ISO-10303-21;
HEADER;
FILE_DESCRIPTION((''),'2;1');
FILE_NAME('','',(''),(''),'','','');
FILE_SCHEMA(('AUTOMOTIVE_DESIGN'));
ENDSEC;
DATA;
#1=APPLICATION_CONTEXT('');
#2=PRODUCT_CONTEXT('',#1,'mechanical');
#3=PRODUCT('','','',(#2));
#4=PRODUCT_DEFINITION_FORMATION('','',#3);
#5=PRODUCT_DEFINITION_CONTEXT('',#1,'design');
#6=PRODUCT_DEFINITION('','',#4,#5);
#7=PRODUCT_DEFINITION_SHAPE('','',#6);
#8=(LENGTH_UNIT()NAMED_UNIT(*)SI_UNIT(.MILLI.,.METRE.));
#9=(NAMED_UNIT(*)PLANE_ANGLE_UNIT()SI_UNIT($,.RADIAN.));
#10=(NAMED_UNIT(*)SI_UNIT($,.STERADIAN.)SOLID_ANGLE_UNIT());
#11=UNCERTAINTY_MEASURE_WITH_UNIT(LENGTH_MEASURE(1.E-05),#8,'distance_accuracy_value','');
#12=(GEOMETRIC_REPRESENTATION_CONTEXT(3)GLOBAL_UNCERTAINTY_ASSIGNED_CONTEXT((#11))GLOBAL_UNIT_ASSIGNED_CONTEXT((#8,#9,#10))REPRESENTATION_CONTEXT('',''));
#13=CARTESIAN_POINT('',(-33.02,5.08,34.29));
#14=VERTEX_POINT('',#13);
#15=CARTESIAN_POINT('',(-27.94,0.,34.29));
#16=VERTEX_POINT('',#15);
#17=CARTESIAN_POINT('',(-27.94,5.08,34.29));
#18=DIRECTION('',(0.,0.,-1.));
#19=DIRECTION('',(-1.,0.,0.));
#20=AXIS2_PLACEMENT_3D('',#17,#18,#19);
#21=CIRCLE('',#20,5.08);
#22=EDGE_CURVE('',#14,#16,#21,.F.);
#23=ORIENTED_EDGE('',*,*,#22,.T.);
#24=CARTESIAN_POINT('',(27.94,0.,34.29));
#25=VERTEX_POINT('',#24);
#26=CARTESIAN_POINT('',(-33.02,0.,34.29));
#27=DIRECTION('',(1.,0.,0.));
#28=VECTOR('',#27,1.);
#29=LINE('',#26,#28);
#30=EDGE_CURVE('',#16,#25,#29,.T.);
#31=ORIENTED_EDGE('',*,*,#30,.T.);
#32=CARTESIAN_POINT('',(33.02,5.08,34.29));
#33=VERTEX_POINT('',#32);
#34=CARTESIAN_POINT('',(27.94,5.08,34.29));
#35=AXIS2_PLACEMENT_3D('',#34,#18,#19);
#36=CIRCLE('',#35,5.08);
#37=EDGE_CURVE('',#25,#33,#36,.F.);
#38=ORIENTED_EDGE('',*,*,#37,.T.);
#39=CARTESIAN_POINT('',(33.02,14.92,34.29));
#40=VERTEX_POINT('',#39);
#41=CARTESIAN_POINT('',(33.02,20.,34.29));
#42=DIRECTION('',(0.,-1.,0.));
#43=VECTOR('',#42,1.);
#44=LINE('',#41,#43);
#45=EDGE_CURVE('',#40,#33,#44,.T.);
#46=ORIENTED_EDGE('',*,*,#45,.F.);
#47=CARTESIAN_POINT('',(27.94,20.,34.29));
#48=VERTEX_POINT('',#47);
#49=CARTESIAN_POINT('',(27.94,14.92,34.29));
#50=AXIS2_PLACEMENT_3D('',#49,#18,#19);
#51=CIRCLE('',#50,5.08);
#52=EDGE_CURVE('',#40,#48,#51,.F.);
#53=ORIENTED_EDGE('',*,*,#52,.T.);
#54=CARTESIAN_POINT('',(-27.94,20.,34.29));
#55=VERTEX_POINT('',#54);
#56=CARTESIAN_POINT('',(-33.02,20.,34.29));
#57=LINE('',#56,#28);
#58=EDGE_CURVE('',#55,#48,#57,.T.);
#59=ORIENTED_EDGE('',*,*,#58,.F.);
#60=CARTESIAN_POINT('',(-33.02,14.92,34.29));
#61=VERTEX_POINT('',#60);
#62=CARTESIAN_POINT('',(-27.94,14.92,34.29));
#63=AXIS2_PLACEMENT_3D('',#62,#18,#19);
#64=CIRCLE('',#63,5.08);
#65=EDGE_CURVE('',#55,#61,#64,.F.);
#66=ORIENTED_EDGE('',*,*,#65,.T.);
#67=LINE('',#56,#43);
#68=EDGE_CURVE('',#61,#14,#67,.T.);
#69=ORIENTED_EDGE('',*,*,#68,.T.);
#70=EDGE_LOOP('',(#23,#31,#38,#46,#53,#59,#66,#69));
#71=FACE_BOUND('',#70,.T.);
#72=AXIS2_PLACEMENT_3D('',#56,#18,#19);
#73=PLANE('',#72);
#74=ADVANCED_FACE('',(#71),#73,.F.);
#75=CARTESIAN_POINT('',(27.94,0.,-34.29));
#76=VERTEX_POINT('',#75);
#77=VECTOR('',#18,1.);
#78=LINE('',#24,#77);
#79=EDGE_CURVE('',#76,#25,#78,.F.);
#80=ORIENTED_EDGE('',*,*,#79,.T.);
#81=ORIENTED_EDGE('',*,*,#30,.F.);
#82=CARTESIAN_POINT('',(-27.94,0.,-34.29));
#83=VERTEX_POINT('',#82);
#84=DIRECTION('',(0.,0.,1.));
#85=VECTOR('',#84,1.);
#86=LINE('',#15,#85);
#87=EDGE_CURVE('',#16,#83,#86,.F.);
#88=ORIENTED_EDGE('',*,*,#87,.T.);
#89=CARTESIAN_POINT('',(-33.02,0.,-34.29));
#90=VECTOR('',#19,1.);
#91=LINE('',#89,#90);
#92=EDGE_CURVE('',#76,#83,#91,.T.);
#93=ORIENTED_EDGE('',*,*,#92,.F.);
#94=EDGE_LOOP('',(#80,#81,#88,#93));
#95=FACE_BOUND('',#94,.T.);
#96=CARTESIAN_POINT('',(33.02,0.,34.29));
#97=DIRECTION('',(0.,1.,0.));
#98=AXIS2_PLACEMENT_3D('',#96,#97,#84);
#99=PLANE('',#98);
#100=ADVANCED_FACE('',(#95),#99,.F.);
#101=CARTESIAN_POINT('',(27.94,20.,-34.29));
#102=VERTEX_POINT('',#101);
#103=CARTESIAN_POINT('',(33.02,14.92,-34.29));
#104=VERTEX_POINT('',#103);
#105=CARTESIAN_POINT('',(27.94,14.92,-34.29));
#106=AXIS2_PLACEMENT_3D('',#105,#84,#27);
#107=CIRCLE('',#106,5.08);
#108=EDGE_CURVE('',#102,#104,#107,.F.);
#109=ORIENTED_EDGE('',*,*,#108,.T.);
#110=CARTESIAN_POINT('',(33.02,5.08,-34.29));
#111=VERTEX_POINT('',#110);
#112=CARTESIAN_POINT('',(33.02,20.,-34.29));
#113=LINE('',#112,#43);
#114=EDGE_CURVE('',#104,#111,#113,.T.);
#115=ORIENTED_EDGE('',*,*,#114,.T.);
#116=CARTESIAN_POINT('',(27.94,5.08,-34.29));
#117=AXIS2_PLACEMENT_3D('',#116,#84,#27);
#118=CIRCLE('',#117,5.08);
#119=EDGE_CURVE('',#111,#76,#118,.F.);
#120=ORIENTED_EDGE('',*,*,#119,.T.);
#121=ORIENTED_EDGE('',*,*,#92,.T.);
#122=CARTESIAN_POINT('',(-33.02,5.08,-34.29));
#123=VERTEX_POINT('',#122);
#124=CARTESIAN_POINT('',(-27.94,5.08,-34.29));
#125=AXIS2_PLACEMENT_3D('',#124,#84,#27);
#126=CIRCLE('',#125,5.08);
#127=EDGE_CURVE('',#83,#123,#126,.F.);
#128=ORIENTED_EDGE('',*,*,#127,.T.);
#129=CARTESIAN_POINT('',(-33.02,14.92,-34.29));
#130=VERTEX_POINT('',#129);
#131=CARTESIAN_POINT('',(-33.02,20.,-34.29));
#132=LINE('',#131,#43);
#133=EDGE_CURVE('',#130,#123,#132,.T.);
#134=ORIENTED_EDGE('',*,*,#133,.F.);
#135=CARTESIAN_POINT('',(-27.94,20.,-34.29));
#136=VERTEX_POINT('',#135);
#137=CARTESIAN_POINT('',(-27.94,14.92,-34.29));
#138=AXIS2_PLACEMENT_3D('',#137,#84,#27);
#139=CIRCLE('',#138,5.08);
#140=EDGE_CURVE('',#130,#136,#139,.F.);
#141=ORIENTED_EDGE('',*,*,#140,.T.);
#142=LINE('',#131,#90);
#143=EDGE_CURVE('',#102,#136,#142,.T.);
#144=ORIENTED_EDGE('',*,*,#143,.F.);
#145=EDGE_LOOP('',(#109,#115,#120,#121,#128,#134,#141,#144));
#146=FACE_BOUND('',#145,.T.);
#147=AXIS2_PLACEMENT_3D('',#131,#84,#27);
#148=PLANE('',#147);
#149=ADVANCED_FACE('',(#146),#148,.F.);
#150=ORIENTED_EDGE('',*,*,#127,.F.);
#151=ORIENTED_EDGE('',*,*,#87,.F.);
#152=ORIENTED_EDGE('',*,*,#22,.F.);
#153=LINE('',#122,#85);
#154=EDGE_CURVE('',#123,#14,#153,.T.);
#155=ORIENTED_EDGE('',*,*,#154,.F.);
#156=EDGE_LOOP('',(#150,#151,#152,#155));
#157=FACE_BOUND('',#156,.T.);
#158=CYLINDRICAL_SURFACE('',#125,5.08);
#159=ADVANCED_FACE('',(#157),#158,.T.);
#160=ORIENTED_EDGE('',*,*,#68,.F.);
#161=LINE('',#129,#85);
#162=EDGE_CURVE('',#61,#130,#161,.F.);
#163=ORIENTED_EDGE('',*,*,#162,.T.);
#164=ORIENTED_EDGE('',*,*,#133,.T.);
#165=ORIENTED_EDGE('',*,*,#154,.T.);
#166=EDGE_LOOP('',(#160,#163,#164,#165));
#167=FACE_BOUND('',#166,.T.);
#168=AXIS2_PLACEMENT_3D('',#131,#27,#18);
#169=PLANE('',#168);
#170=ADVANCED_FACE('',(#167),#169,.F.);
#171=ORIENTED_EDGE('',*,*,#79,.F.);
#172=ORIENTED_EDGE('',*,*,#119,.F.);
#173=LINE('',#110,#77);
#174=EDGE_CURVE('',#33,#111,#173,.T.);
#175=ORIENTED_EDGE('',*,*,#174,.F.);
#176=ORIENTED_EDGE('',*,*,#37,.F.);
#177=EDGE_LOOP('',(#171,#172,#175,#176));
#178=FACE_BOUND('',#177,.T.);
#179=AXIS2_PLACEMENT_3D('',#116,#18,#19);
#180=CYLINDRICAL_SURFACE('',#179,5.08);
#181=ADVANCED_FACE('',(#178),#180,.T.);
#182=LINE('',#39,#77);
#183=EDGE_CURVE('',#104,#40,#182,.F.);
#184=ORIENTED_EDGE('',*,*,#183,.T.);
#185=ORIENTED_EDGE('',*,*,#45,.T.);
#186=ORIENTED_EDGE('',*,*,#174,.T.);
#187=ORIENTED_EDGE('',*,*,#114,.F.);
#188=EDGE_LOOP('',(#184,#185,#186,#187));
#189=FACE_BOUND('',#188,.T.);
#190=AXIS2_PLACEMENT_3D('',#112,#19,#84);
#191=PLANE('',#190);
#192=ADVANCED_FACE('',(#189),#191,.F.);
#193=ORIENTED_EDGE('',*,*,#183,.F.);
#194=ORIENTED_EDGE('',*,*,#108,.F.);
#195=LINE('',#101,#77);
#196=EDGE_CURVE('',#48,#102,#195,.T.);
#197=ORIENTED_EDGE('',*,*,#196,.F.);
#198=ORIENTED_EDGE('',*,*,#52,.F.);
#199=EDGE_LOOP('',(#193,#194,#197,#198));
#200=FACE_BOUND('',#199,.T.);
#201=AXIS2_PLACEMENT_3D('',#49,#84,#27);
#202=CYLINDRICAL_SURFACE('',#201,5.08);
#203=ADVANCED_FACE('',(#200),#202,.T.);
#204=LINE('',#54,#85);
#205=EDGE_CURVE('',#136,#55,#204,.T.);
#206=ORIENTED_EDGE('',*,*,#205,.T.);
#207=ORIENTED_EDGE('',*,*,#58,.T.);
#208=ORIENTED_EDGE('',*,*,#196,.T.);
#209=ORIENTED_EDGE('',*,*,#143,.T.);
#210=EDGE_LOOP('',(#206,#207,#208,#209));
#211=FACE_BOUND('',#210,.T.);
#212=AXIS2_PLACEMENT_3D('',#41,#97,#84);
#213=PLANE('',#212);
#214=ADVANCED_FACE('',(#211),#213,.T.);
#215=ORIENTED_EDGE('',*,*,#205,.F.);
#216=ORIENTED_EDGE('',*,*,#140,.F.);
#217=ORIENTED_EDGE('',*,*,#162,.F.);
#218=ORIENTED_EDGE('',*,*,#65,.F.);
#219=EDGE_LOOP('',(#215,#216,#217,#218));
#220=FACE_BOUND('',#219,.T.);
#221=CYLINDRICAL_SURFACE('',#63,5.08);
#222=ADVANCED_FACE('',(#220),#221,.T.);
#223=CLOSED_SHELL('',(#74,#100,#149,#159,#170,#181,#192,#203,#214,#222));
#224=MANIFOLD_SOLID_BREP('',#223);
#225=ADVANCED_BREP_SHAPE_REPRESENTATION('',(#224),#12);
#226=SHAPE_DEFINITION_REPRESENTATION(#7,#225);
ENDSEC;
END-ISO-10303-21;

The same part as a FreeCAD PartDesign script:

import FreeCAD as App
import Part
import Sketcher
Q = App.Units.Quantity


def edges_at(feature, points):
    """Names of the edges that pass closest to the given points."""
    edges = feature.Shape.Edges
    near = lambda p: min(range(len(edges)), key=lambda i: edges[i].distToShape(Part.Vertex(*p))[0])
    return sorted({f"Edge{near(p) + 1}" for p in points})

doc = App.newDocument("Part")
params = doc.addObject("Spreadsheet::Sheet", "Params")
for row, (alias, value) in enumerate([
    ("sketch1_width", "2.6 in"),
    ("sketch1_height", "2.7 in"),
    ("pad1_length", "20 mm"),
    ("fillet_radius", "0.2 in"),
], start=1):
    params.set(f"A{row}", alias)
    params.set(f"B{row}", "=" + value)
    params.setAlias(f"B{row}", alias)

body = doc.addObject("PartDesign::Body", "Body")

sketch1 = body.newObject("Sketcher::SketchObject", "Sketch")
sketch1.AttachmentSupport = (doc.getObject("XZ_Plane"), [""])
sketch1.MapMode = "FlatFace"
sketch1.addGeometry(Part.LineSegment(App.Vector(-33.02, -34.29, 0), App.Vector(-33.02, 34.29, 0)), False)
sketch1.addGeometry(Part.LineSegment(App.Vector(-33.02, 34.29, 0), App.Vector(33.02, 34.29, 0)), False)
sketch1.addGeometry(Part.LineSegment(App.Vector(33.02, 34.29, 0), App.Vector(33.02, -34.29, 0)), False)
sketch1.addGeometry(Part.LineSegment(App.Vector(33.02, -34.29, 0), App.Vector(-33.02, -34.29, 0)), False)
sketch1.addConstraint(Sketcher.Constraint("Coincident", 0, 2, 1, 1))
sketch1.addConstraint(Sketcher.Constraint("Coincident", 1, 2, 2, 1))
sketch1.addConstraint(Sketcher.Constraint("Coincident", 2, 2, 3, 1))
sketch1.addConstraint(Sketcher.Constraint("Coincident", 3, 2, 0, 1))
sketch1.addConstraint(Sketcher.Constraint("Vertical", 0))
sketch1.addConstraint(Sketcher.Constraint("Horizontal", 1))
sketch1.addConstraint(Sketcher.Constraint("Vertical", 2))
sketch1.addConstraint(Sketcher.Constraint("Horizontal", 3))
sketch1.addConstraint(Sketcher.Constraint("Symmetric", 0, 2, 2, 2, -1, 1))
sketch1.addConstraint(Sketcher.Constraint("DistanceX", 1, 1, 1, 2, Q("2.6 in")))
sketch1.addConstraint(Sketcher.Constraint("DistanceY", 0, 1, 0, 2, Q("2.7 in")))
sketch1.setExpression("Constraints[9]", "Params.sketch1_width")
sketch1.setExpression("Constraints[10]", "Params.sketch1_height")
pad1 = body.newObject("PartDesign::Pad", "Pad")
pad1.Profile = sketch1
pad1.setExpression("Length", "Params.pad1_length")
pad1.Reversed = True
doc.recompute()

fillet = body.newObject("PartDesign::Fillet", "Fillet")
fillet.Base = (pad1, edges_at(pad1, [
    (-33.02, 20, 0),
    (33.02, 20, 0),
    (-33.02, 0, 0),
    (33.02, 0, 0),
]))
fillet.setExpression("Radius", "Params.fillet_radius")

doc.recompute()
